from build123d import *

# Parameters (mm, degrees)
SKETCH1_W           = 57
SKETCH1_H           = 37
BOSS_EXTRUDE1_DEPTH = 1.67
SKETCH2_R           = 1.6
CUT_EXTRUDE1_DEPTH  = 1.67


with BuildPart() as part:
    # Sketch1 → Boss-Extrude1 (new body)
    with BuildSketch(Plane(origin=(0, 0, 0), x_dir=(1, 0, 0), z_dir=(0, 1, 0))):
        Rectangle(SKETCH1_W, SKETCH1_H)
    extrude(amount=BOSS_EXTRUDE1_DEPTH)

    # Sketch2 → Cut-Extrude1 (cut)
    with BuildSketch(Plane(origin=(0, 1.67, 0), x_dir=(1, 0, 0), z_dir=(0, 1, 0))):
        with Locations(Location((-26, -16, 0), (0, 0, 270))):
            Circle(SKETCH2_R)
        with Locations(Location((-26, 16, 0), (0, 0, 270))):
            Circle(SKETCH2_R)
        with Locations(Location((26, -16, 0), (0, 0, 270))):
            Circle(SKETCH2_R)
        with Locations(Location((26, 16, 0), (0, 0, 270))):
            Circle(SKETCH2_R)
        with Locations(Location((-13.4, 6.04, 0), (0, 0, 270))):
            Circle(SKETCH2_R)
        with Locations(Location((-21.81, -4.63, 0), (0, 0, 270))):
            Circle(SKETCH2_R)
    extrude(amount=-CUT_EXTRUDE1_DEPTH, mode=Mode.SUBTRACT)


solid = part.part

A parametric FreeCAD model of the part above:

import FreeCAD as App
import Part
import Sketcher

V = App.Vector
Q = App.Units.Quantity


def add_polygon(sketch, points):
    """Adds a closed chain of lines whose ends are joined by coincident constraints."""
    first, n = sketch.GeometryCount, len(points)
    for a, b in zip(points, points[1:] + points[:1]):
        sketch.addGeometry(Part.LineSegment(App.Vector(*a, 0), App.Vector(*b, 0)), False)
    for i in range(n):
        sketch.addConstraint(Sketcher.Constraint("Coincident", first + i, 2, first + (i + 1) % n, 1))

doc = App.newDocument("Part")
params = doc.addObject("Spreadsheet::Sheet", "Params")
for row, (alias, value) in enumerate([
    ("sketch1_width", "57 mm"),
    ("sketch1_height", "37 mm"),
    ("pad1_length", "1.67 mm"),
    ("sketch2_diameter", "3.2 mm"),
    ("pocket1_length", "1.67 mm"),
], start=1):
    params.set(f"A{row}", alias)
    params.set(f"B{row}", "=" + value)
    params.setAlias(f"B{row}", alias)

body = doc.addObject("PartDesign::Body", "Body")

sketch1 = body.newObject("Sketcher::SketchObject", "Sketch")
sketch1.AttachmentSupport = (doc.getObject("XZ_Plane"), [""])
sketch1.MapMode = "FlatFace"
add_polygon(sketch1, [(-28, -18), (-28, 18), (28, 18), (28, -18)])
sketch1.addConstraint([
    Sketcher.Constraint("Vertical", 0),
    Sketcher.Constraint("Horizontal", 1),
    Sketcher.Constraint("Vertical", 2),
    Sketcher.Constraint("Horizontal", 3),
    Sketcher.Constraint("Symmetric", 0, 2, 2, 2, -1, 1),
    Sketcher.Constraint("DistanceX", 1, 1, 1, 2, Q("57 mm")),
    Sketcher.Constraint("DistanceY", 0, 1, 0, 2, Q("37 mm")),
])
sketch1.setExpression("Constraints[9]", "Params.sketch1_width")
sketch1.setExpression("Constraints[10]", "Params.sketch1_height")
pad1 = body.newObject("PartDesign::Pad", "Pad")
pad1.Profile = sketch1
pad1.setExpression("Length", "Params.pad1_length")
pad1.Reversed = True

sketch2 = body.newObject("Sketcher::SketchObject", "Sketch001")
sketch2.AttachmentSupport = (doc.getObject("XZ_Plane"), [""])
sketch2.MapMode = "FlatFace"
sketch2.AttachmentOffset = App.Placement(V(0, 0, -1.67), App.Rotation())
sketch2.addGeometry([
    Part.Circle(V(-26, 16, 0), V(0, 0, 1), 1.6),
    Part.Circle(V(-26, -16, 0), V(0, 0, 1), 1.6),
    Part.Circle(V(26, 16, 0), V(0, 0, 1), 1.6),
    Part.Circle(V(26, -16, 0), V(0, 0, 1), 1.6),
    Part.Circle(V(-13.4, -6, 0), V(0, 0, 1), 1.6),
    Part.Circle(V(-21.8, 4.6, 0), V(0, 0, 1), 1.6),
], False)
sketch2.addConstraint([
    Sketcher.Constraint("Equal", 0, 1),
    Sketcher.Constraint("Equal", 1, 2),
    Sketcher.Constraint("Equal", 2, 3),
    Sketcher.Constraint("Equal", 3, 4),
    Sketcher.Constraint("Equal", 4, 5),
    Sketcher.Constraint("Symmetric", 1, 3, 2, 3, -1, 1),
    Sketcher.Constraint("Symmetric", 0, 3, 3, 3, -1, 1),
    Sketcher.Constraint("Symmetric", 0, 3, 2, 3, -2),
    Sketcher.Constraint("Diameter", 0, Q("3.2 mm")),
    Sketcher.Constraint("DistanceX", 0, 3, -1, 1, Q("26 mm")),
    Sketcher.Constraint("DistanceY", -1, 1, 0, 3, Q("16 mm")),
    Sketcher.Constraint("DistanceX", 4, 3, -1, 1, Q("13.4 mm")),
    Sketcher.Constraint("DistanceY", 4, 3, -1, 1, Q("6.04 mm")),
    Sketcher.Constraint("DistanceX", 5, 3, -1, 1, Q("21.81 mm")),
    Sketcher.Constraint("DistanceY", -1, 1, 5, 3, Q("4.63 mm")),
])
sketch2.setExpression("Constraints[8]", "Params.sketch2_diameter")
pocket1 = body.newObject("PartDesign::Pocket", "Pocket")
pocket1.Profile = sketch2
pocket1.setExpression("Length", "Params.pocket1_length")
pocket1.Reversed = True

doc.recompute()
